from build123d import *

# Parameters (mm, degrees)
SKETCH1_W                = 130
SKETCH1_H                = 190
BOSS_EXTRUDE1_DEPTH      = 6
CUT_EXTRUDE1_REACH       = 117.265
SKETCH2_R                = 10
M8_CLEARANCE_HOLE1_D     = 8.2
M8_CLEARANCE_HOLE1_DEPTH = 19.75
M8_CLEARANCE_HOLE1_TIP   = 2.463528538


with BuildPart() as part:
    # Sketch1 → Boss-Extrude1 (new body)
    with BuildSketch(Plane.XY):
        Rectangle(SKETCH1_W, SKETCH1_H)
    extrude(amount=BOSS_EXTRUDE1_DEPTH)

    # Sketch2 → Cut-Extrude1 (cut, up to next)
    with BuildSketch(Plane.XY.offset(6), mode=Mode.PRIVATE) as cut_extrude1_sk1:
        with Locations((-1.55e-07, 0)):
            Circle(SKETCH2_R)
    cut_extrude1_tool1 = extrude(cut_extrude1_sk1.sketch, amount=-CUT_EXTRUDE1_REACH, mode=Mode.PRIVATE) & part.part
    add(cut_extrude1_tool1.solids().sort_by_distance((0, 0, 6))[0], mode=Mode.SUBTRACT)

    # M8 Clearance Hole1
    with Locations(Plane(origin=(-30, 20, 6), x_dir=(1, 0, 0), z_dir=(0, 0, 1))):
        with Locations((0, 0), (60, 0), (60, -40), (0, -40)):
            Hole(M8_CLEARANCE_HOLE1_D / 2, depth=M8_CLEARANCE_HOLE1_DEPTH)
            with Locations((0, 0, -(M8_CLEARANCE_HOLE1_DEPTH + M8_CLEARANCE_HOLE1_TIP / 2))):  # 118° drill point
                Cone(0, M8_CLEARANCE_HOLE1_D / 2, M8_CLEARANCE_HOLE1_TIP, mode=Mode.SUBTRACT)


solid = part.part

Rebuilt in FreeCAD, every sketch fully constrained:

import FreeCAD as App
import Part
import Sketcher
from FreeCAD import Vector
Q = App.Units.Quantity


def add_polygon(sketch, points):
    """Adds a closed chain of lines whose ends are joined by coincident constraints."""
    first, n = sketch.GeometryCount, len(points)
    for a, b in zip(points, points[1:] + points[:1]):
        sketch.addGeometry(Part.LineSegment(App.Vector(*a, 0), App.Vector(*b, 0)), False)
    for i in range(n):
        sketch.addConstraint(Sketcher.Constraint("Coincident", first + i, 2, first + (i + 1) % n, 1))

doc = App.newDocument("Part")
params = doc.addObject("Spreadsheet::Sheet", "Params")
for row, (alias, value) in enumerate([
    ("sketch1_width", "130 mm"),
    ("sketch1_height", "190 mm"),
    ("pad1_length", "6 mm"),
    ("sketch2_diameter", "20 mm"),
    ("sketch3_diameter", "8.2 mm"),
    ("hole_diameter", "8.2 mm"),
    ("hole_depth", "19.75 mm"),
], start=1):
    params.set(f"A{row}", alias)
    params.set(f"B{row}", "=" + value)
    params.setAlias(f"B{row}", alias)

body = doc.addObject("PartDesign::Body", "Body")

# Sketch on XY plane
sketch1 = body.newObject("Sketcher::SketchObject", "Sketch")
sketch1.AttachmentSupport = (doc.getObject("XY_Plane"), [""])
sketch1.MapMode = "FlatFace"
add_polygon(sketch1, [(-65, 95), (-65, -95), (65, -95), (65, 95)])  # lines 0-3
sketch1.addConstraint(Sketcher.Constraint("Vertical", 0))
sketch1.addConstraint(Sketcher.Constraint("Horizontal", 1))
sketch1.addConstraint(Sketcher.Constraint("Vertical", 2))
sketch1.addConstraint(Sketcher.Constraint("Horizontal", 3))
sketch1.addConstraint(Sketcher.Constraint("Symmetric", 0, 2, 2, 2, -1, 1))
sketch1.addConstraint(Sketcher.Constraint("DistanceX", 1, 1, 1, 2, Q("130 mm")))
sketch1.addConstraint(Sketcher.Constraint("DistanceY", 0, 2, 0, 1, Q("190 mm")))
sketch1.setExpression("Constraints[9]", "Params.sketch1_width")
sketch1.setExpression("Constraints[10]", "Params.sketch1_height")
pad1 = body.newObject("PartDesign::Pad", "Pad")
pad1.Profile = sketch1
pad1.setExpression("Length", "Params.pad1_length")

# Sketch on XY plane
sketch2 = body.newObject("Sketcher::SketchObject", "Sketch001")
sketch2.AttachmentSupport = (doc.getObject("XY_Plane"), [""])
sketch2.MapMode = "FlatFace"
sketch2.AttachmentOffset = App.Placement(Vector(0, 0, 6), App.Rotation())
sketch2.addGeometry(Part.Circle(Vector(0, 0, 0), Vector(0, 0, 1), 10), False)
sketch2.addConstraint(Sketcher.Constraint("Coincident", 0, 3, -1, 1))
sketch2.addConstraint(Sketcher.Constraint("Diameter", 0, Q("20 mm")))
sketch2.setExpression("Constraints[1]", "Params.sketch2_diameter")
pocket1 = body.newObject("PartDesign::Pocket", "Pocket")
pocket1.Profile = sketch2
pocket1.Type = "UpToFirst"

# Sketch on XY plane
sketch3 = body.newObject("Sketcher::SketchObject", "Sketch002")
sketch3.AttachmentSupport = (doc.getObject("XY_Plane"), [""])
sketch3.MapMode = "FlatFace"
sketch3.AttachmentOffset = App.Placement(Vector(0, 0, 6), App.Rotation())
sketch3.addGeometry(Part.Circle(Vector(-30, 20, 0), Vector(0, 0, 1), 4.1), False)
sketch3.addGeometry(Part.Circle(Vector(30, 20, 0), Vector(0, 0, 1), 4.1), False)
sketch3.addGeometry(Part.Circle(Vector(30, -20, 0), Vector(0, 0, 1), 4.1), False)
sketch3.addGeometry(Part.Circle(Vector(-30, -20, 0), Vector(0, 0, 1), 4.1), False)
sketch3.addConstraint(Sketcher.Constraint("Equal", 0, 1))
sketch3.addConstraint(Sketcher.Constraint("Equal", 1, 2))
sketch3.addConstraint(Sketcher.Constraint("Equal", 2, 3))
sketch3.addConstraint(Sketcher.Constraint("Symmetric", 0, 3, 2, 3, -1, 1))
sketch3.addConstraint(Sketcher.Constraint("Symmetric", 1, 3, 3, 3, -1, 1))
sketch3.addConstraint(Sketcher.Constraint("Symmetric", 0, 3, 1, 3, -2))
sketch3.addConstraint(Sketcher.Constraint("Diameter", 0, Q("8.2 mm")))
sketch3.addConstraint(Sketcher.Constraint("DistanceX", 0, 3, -1, 1, Q("30 mm")))
sketch3.addConstraint(Sketcher.Constraint("DistanceY", -1, 1, 0, 3, Q("20 mm")))
sketch3.setExpression("Constraints[6]", "Params.sketch3_diameter")
doc.recompute()
hole = body.newObject("PartDesign::Hole", "Hole")
hole.Profile = sketch3
hole.ThreadType = "None"
hole.setExpression("Diameter", "Params.hole_diameter")
hole.DepthType = "Dimension"
hole.setExpression("Depth", "Params.hole_depth")
hole.DrillPoint = "Angled"
hole.DrillPointAngle = 118

doc.recompute()
